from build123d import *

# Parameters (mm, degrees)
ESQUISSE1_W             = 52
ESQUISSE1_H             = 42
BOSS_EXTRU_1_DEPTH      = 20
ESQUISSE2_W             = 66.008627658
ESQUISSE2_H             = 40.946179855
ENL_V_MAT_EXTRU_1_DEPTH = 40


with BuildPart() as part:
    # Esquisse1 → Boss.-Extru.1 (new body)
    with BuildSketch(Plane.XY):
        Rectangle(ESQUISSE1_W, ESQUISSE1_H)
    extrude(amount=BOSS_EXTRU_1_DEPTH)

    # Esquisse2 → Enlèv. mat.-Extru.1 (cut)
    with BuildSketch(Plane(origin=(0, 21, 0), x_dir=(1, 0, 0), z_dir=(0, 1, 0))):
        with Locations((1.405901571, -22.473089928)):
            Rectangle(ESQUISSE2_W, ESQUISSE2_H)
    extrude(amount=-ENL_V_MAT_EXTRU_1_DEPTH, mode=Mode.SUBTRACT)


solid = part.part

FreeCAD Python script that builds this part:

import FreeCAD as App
import Part
import Sketcher

V = App.Vector


def add_polygon(sketch, points):
    """Adds a closed chain of lines whose ends are joined by coincident constraints."""
    first, n = sketch.GeometryCount, len(points)
    for a, b in zip(points, points[1:] + points[:1]):
        sketch.addGeometry(Part.LineSegment(App.Vector(*a, 0), App.Vector(*b, 0)), False)
    for i in range(n):
        sketch.addConstraint(Sketcher.Constraint("Coincident", first + i, 2, first + (i + 1) % n, 1))

doc = App.newDocument("Part")
params = doc.addObject("Spreadsheet::Sheet", "Params")
for row, (alias, value) in enumerate([
    ("sketch1_width", "52 mm"),
    ("sketch1_height", "42 mm"),
    ("pad1_length", "20 mm"),
    ("pocket1_length", "40 mm"),
], start=1):
    params.set(f"A{row}", alias)
    params.set(f"B{row}", "=" + value)
    params.setAlias(f"B{row}", alias)

body = doc.addObject("PartDesign::Body", "Body")

# Sketch on XY plane
sketch1 = body.newObject("Sketcher::SketchObject", "Sketch")
sketch1.AttachmentSupport = (doc.getObject("XY_Plane"), [""])
sketch1.MapMode = "FlatFace"
add_polygon(sketch1, [(-26, 21), (-26, -21), (26, -21), (26, 21)])  # lines 0-3
sketch1.addConstraint([
    Sketcher.Constraint("Vertical", 0),
    Sketcher.Constraint("Horizontal", 1),
    Sketcher.Constraint("Vertical", 2),
    Sketcher.Constraint("Horizontal", 3),
    Sketcher.Constraint("Symmetric", 0, 2, 2, 2, -1, 1),
    Sketcher.Constraint("DistanceX", 1, 1, 1, 2, 52.0),
    Sketcher.Constraint("DistanceY", 0, 2, 0, 1, 42.0),
])
sketch1.setExpression("Constraints[9]", "Params.sketch1_width")
sketch1.setExpression("Constraints[10]", "Params.sketch1_height")
pad1 = body.newObject("PartDesign::Pad", "Pad")
pad1.Profile = sketch1
pad1.setExpression("Length", "Params.pad1_length")

# Sketch on XZ plane
sketch2 = body.newObject("Sketcher::SketchObject", "Sketch001")
sketch2.AttachmentSupport = (doc.getObject("XZ_Plane"), [""])
sketch2.MapMode = "FlatFace"
sketch2.AttachmentOffset = App.Placement(V(0, 0, -21), App.Rotation())
add_polygon(sketch2, [(-32, 2), (-32, 43), (34, 43), (34, 2)])  # lines 0-3
sketch2.addConstraint([
    Sketcher.Constraint("Vertical", 0),
    Sketcher.Constraint("Horizontal", 1),
    Sketcher.Constraint("Vertical", 2),
    Sketcher.Constraint("Horizontal", 3),
    Sketcher.Constraint("DistanceY", -1, 1, 2, 2, 2.0),
    Sketcher.Constraint("DistanceY", 0, 1, 0, 2, 40.94618),
    Sketcher.Constraint("DistanceX", 1, 1, 1, 2, 66.008628),
    Sketcher.Constraint("DistanceX", 0, 2, -1, 1, 31.598412),
])
pocket1 = body.newObject("PartDesign::Pocket", "Pocket")
pocket1.Profile = sketch2
pocket1.setExpression("Length", "Params.pocket1_length")
pocket1.Reversed = True

doc.recompute()
